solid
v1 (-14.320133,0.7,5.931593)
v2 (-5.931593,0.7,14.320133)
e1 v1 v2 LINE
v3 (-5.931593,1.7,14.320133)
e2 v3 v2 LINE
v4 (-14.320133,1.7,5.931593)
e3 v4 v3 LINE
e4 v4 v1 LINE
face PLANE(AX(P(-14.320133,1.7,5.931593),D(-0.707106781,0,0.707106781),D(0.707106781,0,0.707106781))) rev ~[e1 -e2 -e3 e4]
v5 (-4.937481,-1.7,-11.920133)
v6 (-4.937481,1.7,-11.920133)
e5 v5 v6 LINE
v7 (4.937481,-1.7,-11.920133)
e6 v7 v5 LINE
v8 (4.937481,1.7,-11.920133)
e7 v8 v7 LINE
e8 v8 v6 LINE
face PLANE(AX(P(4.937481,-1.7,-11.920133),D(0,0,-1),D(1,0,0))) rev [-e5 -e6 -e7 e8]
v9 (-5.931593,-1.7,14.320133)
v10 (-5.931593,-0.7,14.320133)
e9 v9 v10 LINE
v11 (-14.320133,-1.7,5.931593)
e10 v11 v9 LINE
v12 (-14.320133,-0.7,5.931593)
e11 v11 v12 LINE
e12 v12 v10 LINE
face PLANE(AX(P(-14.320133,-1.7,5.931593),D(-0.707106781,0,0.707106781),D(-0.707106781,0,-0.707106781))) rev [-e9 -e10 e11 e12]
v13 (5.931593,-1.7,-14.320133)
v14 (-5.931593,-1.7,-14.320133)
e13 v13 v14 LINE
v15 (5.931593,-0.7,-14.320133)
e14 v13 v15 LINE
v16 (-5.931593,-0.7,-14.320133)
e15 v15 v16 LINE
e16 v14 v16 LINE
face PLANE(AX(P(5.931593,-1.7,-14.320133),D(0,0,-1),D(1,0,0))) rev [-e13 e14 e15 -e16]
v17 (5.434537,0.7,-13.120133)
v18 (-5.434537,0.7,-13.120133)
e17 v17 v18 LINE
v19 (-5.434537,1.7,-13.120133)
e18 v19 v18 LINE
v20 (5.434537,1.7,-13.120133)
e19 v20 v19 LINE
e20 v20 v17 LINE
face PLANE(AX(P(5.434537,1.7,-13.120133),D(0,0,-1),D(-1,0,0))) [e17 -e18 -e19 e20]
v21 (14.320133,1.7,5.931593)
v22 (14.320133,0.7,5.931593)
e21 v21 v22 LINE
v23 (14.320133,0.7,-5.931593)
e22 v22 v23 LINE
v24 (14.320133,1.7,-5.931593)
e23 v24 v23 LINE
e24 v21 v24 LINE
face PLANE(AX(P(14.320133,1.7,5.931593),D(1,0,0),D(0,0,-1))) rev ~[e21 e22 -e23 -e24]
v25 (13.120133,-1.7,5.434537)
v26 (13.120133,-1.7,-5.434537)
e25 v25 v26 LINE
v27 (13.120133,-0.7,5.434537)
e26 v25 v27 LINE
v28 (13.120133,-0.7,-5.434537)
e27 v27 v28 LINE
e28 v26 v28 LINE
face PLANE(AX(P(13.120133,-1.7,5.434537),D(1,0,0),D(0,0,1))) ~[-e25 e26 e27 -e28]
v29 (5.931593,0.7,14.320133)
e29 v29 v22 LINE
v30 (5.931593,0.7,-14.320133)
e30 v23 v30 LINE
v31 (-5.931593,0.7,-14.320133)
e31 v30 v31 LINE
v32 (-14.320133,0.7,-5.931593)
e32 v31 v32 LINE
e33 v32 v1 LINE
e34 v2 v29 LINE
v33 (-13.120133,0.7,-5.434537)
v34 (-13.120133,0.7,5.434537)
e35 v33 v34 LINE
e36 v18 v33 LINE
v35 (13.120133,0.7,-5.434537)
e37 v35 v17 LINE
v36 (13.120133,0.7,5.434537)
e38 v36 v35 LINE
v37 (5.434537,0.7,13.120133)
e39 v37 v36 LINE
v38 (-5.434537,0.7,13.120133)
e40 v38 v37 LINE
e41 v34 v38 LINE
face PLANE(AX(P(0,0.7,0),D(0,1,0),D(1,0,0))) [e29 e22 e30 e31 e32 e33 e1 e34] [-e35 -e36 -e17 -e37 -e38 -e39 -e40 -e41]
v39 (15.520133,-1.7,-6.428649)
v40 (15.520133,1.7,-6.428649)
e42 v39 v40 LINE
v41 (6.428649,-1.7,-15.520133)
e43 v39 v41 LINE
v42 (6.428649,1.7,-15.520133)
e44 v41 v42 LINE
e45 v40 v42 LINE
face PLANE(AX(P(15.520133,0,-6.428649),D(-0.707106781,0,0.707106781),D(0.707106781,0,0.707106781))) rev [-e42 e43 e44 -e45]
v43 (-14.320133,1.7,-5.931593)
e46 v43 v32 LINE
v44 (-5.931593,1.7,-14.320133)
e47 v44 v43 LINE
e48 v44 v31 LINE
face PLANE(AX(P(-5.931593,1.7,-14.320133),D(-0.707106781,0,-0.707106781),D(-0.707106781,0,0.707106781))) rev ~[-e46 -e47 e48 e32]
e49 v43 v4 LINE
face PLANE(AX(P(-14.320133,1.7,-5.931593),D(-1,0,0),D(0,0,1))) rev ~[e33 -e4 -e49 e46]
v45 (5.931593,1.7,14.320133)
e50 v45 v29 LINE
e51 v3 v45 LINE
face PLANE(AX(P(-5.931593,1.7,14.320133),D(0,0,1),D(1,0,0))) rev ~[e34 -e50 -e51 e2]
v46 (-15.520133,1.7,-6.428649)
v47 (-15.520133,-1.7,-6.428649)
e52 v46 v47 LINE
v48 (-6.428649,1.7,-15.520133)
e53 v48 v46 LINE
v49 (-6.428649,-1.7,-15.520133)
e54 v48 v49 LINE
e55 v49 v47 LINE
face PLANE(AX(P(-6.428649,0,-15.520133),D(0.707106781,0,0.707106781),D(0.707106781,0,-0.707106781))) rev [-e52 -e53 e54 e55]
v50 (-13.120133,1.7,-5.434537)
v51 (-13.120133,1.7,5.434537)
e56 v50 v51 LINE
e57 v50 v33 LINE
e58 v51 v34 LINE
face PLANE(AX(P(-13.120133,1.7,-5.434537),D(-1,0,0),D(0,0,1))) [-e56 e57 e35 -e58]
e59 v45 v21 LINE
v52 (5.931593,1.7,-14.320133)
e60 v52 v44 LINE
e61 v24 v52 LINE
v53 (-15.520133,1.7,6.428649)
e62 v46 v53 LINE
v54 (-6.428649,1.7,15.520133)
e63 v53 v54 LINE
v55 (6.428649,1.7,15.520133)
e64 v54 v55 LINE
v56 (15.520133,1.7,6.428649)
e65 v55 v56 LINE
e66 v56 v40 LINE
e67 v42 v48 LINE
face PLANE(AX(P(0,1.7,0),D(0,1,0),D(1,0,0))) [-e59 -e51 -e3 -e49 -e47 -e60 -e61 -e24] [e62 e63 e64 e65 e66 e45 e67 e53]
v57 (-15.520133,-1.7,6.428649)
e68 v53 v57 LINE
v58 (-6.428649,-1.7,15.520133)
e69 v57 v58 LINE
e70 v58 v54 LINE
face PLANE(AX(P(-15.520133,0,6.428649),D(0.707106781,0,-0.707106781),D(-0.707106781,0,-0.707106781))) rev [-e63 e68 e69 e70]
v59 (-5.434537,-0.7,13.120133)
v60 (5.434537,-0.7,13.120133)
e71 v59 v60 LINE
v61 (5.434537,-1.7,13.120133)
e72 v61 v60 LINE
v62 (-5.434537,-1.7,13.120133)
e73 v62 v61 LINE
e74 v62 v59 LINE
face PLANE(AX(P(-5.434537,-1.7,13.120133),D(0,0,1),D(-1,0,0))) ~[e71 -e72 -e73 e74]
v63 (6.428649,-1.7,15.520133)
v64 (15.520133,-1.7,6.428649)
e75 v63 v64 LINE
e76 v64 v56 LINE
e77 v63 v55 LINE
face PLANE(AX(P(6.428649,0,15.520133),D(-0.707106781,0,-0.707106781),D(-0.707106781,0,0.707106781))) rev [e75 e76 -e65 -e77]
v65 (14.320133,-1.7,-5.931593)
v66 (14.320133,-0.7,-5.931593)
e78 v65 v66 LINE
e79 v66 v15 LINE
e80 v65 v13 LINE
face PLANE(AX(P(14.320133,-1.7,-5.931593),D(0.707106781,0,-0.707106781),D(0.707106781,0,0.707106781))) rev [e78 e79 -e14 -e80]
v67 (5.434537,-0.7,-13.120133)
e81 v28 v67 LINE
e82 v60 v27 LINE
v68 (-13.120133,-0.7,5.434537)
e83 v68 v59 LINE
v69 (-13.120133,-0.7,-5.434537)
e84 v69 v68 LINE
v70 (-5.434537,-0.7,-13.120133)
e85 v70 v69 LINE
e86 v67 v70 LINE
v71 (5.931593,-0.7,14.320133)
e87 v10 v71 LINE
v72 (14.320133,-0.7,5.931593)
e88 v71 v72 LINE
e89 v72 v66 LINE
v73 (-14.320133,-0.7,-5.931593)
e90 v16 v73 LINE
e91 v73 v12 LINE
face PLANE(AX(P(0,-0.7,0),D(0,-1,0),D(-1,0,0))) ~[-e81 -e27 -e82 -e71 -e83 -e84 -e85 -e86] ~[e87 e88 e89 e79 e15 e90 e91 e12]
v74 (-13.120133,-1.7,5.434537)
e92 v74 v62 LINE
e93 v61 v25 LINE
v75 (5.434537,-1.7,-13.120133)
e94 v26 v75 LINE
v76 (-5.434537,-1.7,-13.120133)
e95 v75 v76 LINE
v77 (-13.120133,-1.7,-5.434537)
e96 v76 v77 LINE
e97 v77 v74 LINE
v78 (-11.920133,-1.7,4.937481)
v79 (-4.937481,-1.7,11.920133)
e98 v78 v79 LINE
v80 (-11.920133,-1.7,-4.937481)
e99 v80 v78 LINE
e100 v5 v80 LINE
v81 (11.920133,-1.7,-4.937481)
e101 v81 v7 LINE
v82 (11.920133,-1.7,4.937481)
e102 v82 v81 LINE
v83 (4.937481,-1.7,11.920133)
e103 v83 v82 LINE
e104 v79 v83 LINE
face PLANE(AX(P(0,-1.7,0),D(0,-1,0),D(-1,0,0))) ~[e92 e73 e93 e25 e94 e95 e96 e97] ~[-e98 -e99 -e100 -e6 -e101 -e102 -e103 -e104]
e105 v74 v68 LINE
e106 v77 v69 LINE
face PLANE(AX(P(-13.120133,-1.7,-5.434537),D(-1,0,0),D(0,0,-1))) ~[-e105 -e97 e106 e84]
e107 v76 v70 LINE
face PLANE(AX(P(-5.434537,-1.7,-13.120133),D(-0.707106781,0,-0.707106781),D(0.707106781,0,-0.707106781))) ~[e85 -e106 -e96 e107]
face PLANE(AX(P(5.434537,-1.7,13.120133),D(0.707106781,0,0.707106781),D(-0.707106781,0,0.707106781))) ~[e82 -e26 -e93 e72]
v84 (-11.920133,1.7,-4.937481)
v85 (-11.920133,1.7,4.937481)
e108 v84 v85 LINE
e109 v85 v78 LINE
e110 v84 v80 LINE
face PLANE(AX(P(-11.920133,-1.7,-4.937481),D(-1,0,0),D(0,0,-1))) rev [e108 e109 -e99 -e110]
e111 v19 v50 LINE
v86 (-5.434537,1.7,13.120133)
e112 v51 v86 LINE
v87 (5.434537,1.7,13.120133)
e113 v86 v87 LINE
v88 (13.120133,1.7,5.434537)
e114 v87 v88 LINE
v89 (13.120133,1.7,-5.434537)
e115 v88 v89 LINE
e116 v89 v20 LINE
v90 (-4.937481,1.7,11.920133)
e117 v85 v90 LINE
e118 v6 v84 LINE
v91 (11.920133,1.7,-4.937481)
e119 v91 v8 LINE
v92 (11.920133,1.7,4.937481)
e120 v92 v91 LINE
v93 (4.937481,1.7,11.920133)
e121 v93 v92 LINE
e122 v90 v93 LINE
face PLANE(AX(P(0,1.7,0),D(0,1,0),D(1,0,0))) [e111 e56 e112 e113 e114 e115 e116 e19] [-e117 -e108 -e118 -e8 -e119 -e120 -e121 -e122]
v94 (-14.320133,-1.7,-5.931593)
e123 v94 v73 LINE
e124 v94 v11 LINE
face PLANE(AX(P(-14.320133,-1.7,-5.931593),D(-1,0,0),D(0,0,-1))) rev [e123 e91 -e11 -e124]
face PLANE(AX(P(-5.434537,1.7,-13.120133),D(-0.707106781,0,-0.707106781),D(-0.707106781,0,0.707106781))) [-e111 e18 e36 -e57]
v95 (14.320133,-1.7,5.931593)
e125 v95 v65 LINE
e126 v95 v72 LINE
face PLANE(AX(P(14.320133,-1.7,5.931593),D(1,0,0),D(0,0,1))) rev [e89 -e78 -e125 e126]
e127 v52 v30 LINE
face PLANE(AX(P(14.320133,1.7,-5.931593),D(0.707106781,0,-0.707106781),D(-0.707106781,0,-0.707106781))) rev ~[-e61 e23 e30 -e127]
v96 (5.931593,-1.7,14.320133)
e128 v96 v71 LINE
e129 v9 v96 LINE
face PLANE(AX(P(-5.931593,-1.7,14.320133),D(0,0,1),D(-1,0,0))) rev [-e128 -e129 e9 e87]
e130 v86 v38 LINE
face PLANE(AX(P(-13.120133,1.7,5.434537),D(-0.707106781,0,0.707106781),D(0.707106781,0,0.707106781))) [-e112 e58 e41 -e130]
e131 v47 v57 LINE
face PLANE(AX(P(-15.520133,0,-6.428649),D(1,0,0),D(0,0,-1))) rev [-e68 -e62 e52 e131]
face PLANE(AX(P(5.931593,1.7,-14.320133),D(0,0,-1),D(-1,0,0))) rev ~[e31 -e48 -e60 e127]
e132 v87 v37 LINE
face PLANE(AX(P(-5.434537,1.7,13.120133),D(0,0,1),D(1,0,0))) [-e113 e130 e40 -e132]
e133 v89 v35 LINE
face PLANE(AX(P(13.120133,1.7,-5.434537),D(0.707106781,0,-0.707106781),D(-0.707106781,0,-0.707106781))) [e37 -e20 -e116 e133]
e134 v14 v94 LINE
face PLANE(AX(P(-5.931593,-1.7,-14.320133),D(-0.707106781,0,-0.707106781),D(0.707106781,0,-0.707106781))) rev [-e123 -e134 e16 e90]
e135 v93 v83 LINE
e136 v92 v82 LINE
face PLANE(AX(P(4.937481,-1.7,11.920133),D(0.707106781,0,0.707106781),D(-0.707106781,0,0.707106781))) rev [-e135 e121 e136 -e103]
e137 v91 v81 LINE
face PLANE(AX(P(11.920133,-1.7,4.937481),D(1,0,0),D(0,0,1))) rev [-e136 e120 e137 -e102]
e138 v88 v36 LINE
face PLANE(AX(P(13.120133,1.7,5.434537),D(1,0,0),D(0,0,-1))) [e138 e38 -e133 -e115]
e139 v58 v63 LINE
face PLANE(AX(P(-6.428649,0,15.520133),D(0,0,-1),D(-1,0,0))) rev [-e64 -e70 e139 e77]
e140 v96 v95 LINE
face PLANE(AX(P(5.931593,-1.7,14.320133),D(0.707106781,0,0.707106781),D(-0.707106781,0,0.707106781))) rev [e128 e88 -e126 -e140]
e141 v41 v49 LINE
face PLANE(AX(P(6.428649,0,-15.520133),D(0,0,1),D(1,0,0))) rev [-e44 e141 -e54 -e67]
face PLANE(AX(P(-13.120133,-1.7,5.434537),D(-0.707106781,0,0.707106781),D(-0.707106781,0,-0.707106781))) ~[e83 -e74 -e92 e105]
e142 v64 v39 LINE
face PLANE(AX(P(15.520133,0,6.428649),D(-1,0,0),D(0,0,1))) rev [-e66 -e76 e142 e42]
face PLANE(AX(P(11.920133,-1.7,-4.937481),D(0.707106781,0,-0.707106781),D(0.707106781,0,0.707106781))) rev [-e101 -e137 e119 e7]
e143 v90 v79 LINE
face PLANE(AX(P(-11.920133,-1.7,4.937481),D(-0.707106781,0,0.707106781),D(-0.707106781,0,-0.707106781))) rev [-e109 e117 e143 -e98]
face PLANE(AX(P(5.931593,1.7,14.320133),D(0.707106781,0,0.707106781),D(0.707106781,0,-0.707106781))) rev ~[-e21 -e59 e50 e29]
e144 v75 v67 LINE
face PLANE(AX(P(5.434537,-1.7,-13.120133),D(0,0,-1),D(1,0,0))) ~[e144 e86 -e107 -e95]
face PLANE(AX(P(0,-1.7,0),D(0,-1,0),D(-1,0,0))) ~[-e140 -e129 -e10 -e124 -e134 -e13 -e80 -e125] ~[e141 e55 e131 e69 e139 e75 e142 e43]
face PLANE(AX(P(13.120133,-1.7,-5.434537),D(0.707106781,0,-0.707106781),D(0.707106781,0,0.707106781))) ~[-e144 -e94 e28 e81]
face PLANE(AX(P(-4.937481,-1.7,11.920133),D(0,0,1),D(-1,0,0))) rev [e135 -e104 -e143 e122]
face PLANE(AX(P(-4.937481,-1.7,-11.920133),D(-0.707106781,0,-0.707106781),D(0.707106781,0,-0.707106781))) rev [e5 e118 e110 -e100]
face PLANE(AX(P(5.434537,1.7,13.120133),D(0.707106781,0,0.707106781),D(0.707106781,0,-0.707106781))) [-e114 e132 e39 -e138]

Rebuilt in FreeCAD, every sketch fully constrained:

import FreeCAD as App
import Part
import Sketcher
from FreeCAD import Vector


def add_polygon(sketch, points):
    """Adds a closed chain of lines whose ends are joined by coincident constraints."""
    first, n = sketch.GeometryCount, len(points)
    for a, b in zip(points, points[1:] + points[:1]):
        sketch.addGeometry(Part.LineSegment(App.Vector(*a, 0), App.Vector(*b, 0)), False)
    for i in range(n):
        sketch.addConstraint(Sketcher.Constraint("Coincident", first + i, 2, first + (i + 1) % n, 1))

doc = App.newDocument("Part")
body = doc.addObject("PartDesign::Body", "Body")

# Sketch on XZ plane
sketch1 = body.newObject("Sketcher::SketchObject", "Sketch")
sketch1.AttachmentSupport = (doc.getObject("XZ_Plane"), [""])
sketch1.MapMode = "FlatFace"
add_polygon(sketch1, [(-16, 6), (-6, 16), (6, 16), (16, 6), (16, -6), (6, -16), (-6, -16), (-16, -6)])  # lines 0-7
sketch1.addConstraint([
    Sketcher.Constraint("Horizontal", 1),
    Sketcher.Constraint("Vertical", 3),
    Sketcher.Constraint("Horizontal", 5),
    Sketcher.Constraint("Vertical", 7),
    Sketcher.Constraint("Symmetric", 0, 2, 4, 2, -1, 1),
    Sketcher.Constraint("Symmetric", 2, 2, 6, 2, -1, 1),
    Sketcher.Constraint("Perpendicular", 0, 2),
    Sketcher.Constraint("Perpendicular", 2, 4),
    Sketcher.Constraint("Perpendicular", 4, 6),
    Sketcher.Constraint("Horizontal", 3, 2, 6, 2),
    Sketcher.Constraint("Vertical", 1, 2, 4, 2),
    Sketcher.Constraint("Equal", 5, 3),
    Sketcher.Constraint("DistanceX", 1, 1, 1, 2, 12.857299),
    Sketcher.Constraint("Distance", 0, 12.857299),
])
pad1 = body.newObject("PartDesign::Pad", "Pad")
pad1.Profile = sketch1
pad1.Length = 1.7
pad1.Reversed = True

# Sketch on XZ plane
sketch2 = body.newObject("Sketcher::SketchObject", "Sketch001")
sketch2.AttachmentSupport = (doc.getObject("XZ_Plane"), [""])
sketch2.MapMode = "FlatFace"
sketch2.AttachmentOffset = App.Placement(Vector(0, 0, -1.7), App.Rotation())
add_polygon(sketch2, [(-14, 6), (-6, 14), (6, 14), (14, 6), (14, -6), (6, -14), (-6, -14), (-14, -6)])  # lines 0-7
add_polygon(sketch2, [(-5, 13), (-13, 5), (-13, -5), (-5, -13), (5, -13), (13, -5), (13, 5), (5, 13)])  # lines 8-15
sketch2.addConstraint([
    Sketcher.Constraint("Horizontal", 1),
    Sketcher.Constraint("Vertical", 3),
    Sketcher.Constraint("Horizontal", 5),
    Sketcher.Constraint("Vertical", 7),
    Sketcher.Constraint("Vertical", 9),
    Sketcher.Constraint("Horizontal", 11),
    Sketcher.Constraint("Vertical", 13),
    Sketcher.Constraint("Horizontal", 15),
    Sketcher.Constraint("Symmetric", 0, 2, 4, 2, -1, 1),
    Sketcher.Constraint("Symmetric", 2, 2, 6, 2, -1, 1),
    Sketcher.Constraint("Symmetric", 8, 2, 12, 2, -1, 1),
    Sketcher.Constraint("Symmetric", 10, 2, 14, 2, -1, 1),
    Sketcher.Constraint("Perpendicular", 0, 2),
    Sketcher.Constraint("Perpendicular", 2, 4),
    Sketcher.Constraint("Perpendicular", 4, 6),
    Sketcher.Constraint("Perpendicular", 6, 8),
    Sketcher.Constraint("Perpendicular", 8, 10),
    Sketcher.Constraint("Perpendicular", 10, 12),
    Sketcher.Constraint("Perpendicular", 12, 14),
    Sketcher.Constraint("Horizontal", 3, 2, 6, 2),
    Sketcher.Constraint("Horizontal", 9, 2, 12, 2),
    Sketcher.Constraint("Vertical", 1, 2, 4, 2),
    Sketcher.Constraint("Equal", 5, 3),
    Sketcher.Constraint("Equal", 15, 9),
    Sketcher.Constraint("DistanceX", 7, 2, 8, 2, 1.2),
    Sketcher.Constraint("DistanceX", 1, 1, 1, 2, 11.863186),
    Sketcher.Constraint("DistanceX", 11, 1, 11, 2, 10.869074),
    Sketcher.Constraint("DistanceX", 1, 2, 2, 2, 8.38854),
])
pocket1 = body.newObject("PartDesign::Pocket", "Pocket")
pocket1.Profile = sketch2
pocket1.Length = 1
pocket1.Reversed = True

# Sketch on XZ plane
sketch3 = body.newObject("Sketcher::SketchObject", "Sketch002")
sketch3.AttachmentSupport = (doc.getObject("XZ_Plane"), [""])
sketch3.MapMode = "FlatFace"
sketch3.AttachmentOffset = App.Placement(Vector(0, 0, -1.7), App.Rotation())
add_polygon(sketch3, [(-5, -12), (-12, -5), (-12, 5), (-5, 12), (5, 12), (12, 5), (12, -5), (5, -12)])  # lines 0-7
sketch3.addConstraint([
    Sketcher.Constraint("Vertical", 1),
    Sketcher.Constraint("Horizontal", 3),
    Sketcher.Constraint("Vertical", 5),
    Sketcher.Constraint("Horizontal", 7),
    Sketcher.Constraint("Symmetric", 0, 2, 4, 2, -1, 1),
    Sketcher.Constraint("Symmetric", 2, 2, 6, 2, -1, 1),
    Sketcher.Constraint("Perpendicular", 0, 2),
    Sketcher.Constraint("Perpendicular", 2, 4),
    Sketcher.Constraint("Perpendicular", 4, 6),
    Sketcher.Constraint("Horizontal", 1, 2, 4, 2),
    Sketcher.Constraint("Vertical", 3, 2, 6, 2),
    Sketcher.Constraint("Equal", 7, 1),
    Sketcher.Constraint("DistanceX", 3, 1, 3, 2, 9.874961),
    Sketcher.Constraint("Distance", 0, 9.874961),
])
pocket2 = body.newObject("PartDesign::Pocket", "Pocket001")
pocket2.Profile = sketch3
pocket2.Type = "ThroughAll"
pocket2.Reversed = True
doc.recompute()

mirrored = body.newObject("PartDesign::Mirrored", "Mirrored")
mirrored.Originals = [pad1, pocket1, pocket2]
mirrored.MirrorPlane = (doc.getObject("XZ_Plane"), [""])
body.Tip = mirrored

doc.recompute()
